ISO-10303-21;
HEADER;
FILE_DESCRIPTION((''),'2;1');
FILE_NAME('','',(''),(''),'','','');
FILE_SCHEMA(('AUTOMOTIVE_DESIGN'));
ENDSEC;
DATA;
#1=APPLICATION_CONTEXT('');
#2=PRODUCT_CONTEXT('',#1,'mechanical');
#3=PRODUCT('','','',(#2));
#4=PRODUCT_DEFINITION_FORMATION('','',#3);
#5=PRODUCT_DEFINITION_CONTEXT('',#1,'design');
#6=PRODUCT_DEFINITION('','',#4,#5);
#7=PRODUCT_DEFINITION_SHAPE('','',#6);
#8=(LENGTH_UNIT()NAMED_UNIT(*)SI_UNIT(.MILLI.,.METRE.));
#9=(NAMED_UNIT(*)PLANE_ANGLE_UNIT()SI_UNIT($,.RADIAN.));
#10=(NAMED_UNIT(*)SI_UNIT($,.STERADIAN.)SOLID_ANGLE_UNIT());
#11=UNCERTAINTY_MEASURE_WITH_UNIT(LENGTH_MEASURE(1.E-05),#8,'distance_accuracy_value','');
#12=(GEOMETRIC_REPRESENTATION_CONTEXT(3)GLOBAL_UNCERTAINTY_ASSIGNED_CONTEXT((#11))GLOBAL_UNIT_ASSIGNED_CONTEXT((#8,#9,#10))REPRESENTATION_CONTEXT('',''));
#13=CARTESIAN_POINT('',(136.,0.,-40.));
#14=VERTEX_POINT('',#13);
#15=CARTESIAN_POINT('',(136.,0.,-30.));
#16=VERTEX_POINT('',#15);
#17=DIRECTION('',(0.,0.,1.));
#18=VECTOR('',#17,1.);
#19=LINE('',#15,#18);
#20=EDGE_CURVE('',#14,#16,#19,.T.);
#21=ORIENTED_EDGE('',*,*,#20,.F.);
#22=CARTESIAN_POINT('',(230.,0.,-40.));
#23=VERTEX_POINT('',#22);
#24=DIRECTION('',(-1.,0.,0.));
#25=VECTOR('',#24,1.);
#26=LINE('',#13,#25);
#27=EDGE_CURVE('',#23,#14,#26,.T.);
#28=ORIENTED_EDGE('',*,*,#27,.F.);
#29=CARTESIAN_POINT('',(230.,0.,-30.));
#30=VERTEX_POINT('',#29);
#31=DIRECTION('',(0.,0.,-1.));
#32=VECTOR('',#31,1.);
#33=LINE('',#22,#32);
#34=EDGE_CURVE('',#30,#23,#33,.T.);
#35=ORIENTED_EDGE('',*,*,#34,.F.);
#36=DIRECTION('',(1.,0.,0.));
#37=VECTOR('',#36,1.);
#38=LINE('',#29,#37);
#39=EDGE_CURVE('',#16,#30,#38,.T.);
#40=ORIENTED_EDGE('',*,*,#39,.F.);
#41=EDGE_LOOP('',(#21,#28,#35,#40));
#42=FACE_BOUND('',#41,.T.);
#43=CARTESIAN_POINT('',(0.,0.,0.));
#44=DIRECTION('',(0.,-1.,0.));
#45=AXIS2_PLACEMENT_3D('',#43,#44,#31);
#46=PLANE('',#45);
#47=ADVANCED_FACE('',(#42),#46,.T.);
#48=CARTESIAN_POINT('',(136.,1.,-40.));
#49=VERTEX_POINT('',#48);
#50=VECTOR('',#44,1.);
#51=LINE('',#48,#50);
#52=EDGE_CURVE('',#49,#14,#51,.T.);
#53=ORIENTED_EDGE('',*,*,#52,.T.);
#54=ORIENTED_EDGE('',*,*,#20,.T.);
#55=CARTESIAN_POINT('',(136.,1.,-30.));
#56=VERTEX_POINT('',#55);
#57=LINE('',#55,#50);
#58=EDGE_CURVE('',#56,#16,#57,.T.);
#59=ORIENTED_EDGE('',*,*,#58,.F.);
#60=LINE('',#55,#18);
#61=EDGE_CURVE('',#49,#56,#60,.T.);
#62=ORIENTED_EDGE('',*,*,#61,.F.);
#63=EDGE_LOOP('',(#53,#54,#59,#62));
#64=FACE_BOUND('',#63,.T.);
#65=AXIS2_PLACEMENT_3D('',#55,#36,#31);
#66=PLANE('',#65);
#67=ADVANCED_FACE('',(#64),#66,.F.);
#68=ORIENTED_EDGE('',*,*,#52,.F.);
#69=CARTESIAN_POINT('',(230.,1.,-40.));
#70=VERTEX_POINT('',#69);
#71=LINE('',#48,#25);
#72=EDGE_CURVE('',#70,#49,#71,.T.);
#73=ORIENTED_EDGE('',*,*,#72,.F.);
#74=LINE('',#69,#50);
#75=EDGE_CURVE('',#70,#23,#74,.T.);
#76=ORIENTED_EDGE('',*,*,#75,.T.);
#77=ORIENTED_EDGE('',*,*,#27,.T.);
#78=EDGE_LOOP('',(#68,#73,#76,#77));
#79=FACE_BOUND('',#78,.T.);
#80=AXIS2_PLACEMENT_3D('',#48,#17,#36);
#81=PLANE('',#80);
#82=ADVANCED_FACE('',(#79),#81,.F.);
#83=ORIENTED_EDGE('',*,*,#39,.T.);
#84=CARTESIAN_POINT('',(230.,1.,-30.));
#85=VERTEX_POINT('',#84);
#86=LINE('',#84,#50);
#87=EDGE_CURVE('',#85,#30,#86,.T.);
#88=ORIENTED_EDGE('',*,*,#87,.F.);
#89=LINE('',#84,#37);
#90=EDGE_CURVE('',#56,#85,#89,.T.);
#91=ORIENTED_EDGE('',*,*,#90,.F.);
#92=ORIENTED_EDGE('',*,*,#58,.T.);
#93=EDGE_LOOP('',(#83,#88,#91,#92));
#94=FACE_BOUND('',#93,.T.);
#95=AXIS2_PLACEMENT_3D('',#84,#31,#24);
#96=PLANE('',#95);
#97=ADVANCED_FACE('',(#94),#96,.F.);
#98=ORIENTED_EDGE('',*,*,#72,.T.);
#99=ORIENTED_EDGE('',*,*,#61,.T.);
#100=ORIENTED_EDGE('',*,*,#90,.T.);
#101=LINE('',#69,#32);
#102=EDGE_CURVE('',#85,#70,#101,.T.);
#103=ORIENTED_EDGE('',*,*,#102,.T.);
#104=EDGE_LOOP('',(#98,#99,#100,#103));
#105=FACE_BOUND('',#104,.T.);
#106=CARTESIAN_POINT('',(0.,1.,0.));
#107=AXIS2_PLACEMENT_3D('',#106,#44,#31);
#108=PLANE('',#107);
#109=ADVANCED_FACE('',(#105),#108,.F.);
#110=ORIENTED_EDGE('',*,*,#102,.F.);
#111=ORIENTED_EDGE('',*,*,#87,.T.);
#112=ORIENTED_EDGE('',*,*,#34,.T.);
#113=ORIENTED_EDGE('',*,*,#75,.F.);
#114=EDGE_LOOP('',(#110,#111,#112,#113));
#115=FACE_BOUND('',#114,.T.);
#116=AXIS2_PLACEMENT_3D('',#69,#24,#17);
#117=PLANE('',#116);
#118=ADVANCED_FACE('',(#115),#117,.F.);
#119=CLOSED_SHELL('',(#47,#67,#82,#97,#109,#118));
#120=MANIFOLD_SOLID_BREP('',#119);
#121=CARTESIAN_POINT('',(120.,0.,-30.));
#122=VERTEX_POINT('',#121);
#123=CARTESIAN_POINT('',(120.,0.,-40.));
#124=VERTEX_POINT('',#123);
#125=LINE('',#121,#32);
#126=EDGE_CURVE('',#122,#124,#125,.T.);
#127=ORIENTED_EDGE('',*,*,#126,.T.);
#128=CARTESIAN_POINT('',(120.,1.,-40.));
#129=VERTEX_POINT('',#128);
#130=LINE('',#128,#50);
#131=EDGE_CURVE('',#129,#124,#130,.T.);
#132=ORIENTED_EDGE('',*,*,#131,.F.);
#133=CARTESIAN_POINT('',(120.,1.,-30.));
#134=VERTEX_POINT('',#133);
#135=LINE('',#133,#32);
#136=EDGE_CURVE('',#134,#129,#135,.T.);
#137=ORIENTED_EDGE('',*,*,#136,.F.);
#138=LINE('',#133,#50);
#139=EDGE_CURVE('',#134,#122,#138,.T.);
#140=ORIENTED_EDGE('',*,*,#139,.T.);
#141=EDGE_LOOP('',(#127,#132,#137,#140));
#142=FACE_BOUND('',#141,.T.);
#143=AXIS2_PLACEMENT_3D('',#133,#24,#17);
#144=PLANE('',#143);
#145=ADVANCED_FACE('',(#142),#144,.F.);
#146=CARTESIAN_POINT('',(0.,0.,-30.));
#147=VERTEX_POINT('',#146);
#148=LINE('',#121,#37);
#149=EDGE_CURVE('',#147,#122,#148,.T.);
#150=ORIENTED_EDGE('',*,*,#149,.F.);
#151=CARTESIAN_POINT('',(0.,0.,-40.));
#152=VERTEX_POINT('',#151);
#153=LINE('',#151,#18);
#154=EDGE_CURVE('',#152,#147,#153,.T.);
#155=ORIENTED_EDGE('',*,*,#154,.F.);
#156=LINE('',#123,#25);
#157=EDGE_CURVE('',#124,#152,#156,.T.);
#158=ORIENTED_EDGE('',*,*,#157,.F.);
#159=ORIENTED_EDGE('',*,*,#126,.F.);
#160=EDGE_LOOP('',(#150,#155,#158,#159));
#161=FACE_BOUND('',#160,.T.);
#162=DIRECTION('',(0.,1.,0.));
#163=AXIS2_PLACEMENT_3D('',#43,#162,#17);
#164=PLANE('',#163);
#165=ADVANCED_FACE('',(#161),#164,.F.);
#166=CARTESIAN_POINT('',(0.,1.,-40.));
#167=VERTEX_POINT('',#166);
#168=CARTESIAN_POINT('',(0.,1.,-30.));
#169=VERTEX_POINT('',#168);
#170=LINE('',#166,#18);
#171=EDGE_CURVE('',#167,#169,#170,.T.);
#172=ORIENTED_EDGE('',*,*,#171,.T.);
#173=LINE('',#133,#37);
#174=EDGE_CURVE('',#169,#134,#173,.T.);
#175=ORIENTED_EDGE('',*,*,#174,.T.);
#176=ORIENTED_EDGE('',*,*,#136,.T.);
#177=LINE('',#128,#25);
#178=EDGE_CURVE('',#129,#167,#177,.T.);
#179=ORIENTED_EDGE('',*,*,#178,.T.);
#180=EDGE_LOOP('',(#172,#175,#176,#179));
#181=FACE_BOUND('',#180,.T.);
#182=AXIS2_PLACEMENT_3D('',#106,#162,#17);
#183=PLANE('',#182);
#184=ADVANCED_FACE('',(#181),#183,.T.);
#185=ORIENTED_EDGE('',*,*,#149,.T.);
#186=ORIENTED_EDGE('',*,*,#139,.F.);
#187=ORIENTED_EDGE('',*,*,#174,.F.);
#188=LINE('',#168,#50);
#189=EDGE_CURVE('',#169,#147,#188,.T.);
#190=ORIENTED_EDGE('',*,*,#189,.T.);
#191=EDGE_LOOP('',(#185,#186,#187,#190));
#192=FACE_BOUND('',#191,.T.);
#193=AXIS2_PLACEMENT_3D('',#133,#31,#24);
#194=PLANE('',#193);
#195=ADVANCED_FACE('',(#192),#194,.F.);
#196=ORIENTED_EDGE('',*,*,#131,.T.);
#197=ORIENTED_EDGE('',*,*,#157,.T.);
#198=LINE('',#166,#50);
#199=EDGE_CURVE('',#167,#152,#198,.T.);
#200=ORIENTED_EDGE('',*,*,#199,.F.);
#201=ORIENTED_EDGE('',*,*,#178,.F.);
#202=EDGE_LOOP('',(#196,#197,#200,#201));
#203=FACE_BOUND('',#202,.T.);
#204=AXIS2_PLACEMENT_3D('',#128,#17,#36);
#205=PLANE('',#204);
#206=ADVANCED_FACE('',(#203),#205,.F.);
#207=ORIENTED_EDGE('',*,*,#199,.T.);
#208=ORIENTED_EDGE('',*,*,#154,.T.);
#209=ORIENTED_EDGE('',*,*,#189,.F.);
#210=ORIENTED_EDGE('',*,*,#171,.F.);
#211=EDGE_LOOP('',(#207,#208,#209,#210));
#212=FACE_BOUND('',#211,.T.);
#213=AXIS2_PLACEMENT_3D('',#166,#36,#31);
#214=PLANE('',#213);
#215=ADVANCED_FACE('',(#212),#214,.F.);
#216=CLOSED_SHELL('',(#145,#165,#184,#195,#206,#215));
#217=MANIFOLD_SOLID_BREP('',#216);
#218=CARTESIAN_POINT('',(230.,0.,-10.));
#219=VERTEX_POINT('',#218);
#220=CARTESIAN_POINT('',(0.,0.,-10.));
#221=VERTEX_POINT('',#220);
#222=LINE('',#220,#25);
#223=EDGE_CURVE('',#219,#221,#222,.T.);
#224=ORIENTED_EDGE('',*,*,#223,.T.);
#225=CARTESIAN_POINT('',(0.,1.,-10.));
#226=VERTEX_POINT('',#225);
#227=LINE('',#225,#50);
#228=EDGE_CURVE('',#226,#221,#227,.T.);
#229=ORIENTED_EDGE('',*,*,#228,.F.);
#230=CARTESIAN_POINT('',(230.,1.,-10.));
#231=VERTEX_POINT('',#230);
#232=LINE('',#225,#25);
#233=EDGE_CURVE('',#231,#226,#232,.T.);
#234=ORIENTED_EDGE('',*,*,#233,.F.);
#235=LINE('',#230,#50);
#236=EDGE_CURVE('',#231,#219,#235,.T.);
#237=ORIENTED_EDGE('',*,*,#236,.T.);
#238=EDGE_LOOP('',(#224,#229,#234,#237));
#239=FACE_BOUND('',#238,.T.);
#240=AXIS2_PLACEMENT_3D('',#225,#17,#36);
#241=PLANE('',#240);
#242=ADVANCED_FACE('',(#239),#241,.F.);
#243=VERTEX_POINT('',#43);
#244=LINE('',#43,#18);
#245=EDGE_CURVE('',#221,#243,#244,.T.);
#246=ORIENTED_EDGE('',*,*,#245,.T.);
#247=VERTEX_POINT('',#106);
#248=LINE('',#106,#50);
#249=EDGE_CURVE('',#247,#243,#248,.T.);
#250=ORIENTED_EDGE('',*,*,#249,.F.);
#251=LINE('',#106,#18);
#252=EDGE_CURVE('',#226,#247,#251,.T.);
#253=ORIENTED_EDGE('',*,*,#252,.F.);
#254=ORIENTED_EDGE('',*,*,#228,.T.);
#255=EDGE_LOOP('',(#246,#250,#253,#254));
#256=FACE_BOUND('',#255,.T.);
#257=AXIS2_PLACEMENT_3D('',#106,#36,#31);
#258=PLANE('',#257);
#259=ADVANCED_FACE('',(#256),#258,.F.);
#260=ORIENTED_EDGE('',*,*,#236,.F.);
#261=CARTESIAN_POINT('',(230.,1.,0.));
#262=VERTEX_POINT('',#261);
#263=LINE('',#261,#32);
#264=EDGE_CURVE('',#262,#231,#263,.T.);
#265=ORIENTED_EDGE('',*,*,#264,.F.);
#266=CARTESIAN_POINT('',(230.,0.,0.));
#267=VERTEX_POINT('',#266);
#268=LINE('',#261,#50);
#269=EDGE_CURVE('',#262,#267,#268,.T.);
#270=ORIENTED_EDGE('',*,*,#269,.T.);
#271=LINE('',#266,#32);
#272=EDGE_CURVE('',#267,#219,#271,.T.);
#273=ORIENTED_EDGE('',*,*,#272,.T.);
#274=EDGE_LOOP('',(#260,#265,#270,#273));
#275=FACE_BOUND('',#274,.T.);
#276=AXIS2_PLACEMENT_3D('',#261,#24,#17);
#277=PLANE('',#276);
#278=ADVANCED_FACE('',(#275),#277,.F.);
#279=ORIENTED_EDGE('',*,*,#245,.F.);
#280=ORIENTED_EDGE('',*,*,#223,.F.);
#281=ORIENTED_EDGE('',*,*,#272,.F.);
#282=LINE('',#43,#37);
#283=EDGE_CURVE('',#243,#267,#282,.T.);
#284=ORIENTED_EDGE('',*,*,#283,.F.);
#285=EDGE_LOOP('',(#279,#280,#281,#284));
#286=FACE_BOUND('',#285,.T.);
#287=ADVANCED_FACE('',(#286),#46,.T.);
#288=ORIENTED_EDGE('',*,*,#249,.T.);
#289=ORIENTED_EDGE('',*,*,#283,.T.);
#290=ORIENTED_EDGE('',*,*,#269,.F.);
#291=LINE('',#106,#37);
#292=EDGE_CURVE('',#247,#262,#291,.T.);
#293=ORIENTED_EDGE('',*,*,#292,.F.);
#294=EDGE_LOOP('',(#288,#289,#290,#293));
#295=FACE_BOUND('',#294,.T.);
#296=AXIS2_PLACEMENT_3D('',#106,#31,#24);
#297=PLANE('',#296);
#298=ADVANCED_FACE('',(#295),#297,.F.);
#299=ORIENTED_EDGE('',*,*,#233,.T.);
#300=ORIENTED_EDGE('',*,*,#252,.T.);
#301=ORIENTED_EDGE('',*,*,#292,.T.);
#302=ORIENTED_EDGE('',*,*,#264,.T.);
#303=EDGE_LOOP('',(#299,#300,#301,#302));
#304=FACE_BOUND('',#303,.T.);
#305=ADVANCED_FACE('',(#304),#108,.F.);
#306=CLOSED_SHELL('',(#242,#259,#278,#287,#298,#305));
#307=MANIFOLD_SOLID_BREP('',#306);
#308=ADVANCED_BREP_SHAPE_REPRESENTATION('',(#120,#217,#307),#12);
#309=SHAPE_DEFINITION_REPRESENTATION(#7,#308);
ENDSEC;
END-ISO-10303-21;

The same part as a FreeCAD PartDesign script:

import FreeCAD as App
import Part
import Sketcher
from FreeCAD import Vector

doc = App.newDocument("Part")
params = doc.addObject("Spreadsheet::Sheet", "Params")
for row, (alias, value) in enumerate([
    ("sketch1_width", "230 mm"),
    ("sketch1_height", "10 mm"),
    ("pad1_length", "1 mm"),
    ("sketch2_width", "94 mm"),
    ("sketch2_height", "10 mm"),
    ("pad2_length", "1 mm"),
    ("sketch3_width", "120 mm"),
    ("sketch3_height", "10 mm"),
    ("pad3_length", "1 mm"),
], start=1):
    params.set(f"A{row}", alias)
    params.set(f"B{row}", "=" + value)
    params.setAlias(f"B{row}", alias)

body = doc.addObject("PartDesign::Body", "Body")

# Sketch on XZ plane
sketch1 = body.newObject("Sketcher::SketchObject", "Sketch")
sketch1.AttachmentSupport = (doc.getObject("XZ_Plane"), [""])
sketch1.MapMode = "FlatFace"
sketch1.addGeometry([
    Part.LineSegment(Vector(0, -10, 0), Vector(0, 0, 0)),
    Part.LineSegment(Vector(0, 0, 0), Vector(230, 0, 0)),
    Part.LineSegment(Vector(230, 0, 0), Vector(230, -10, 0)),
    Part.LineSegment(Vector(230, -10, 0), Vector(0, -10, 0)),
], False)
sketch1.addConstraint([
    Sketcher.Constraint("Coincident", 0, 2, 1, 1),
    Sketcher.Constraint("Coincident", 1, 2, 2, 1),
    Sketcher.Constraint("Coincident", 2, 2, 3, 1),
    Sketcher.Constraint("Coincident", 3, 2, 0, 1),
    Sketcher.Constraint("Vertical", 0),
    Sketcher.Constraint("Horizontal", 1),
    Sketcher.Constraint("Vertical", 2),
    Sketcher.Constraint("Horizontal", 3),
    Sketcher.Constraint("Coincident", 0, 2, -1, 1),
    Sketcher.Constraint("DistanceX", 1, 1, 1, 2, 230.0),
    Sketcher.Constraint("DistanceY", 0, 1, 0, 2, 10.0),
])
sketch1.setExpression("Constraints[9]", "Params.sketch1_width")
sketch1.setExpression("Constraints[10]", "Params.sketch1_height")
pad1 = body.newObject("PartDesign::Pad", "Pad")
pad1.Profile = sketch1
pad1.setExpression("Length", "Params.pad1_length")
pad1.Reversed = True
body2 = doc.addObject("PartDesign::Body", "Body001")

# Sketch on XZ plane
sketch2 = body2.newObject("Sketcher::SketchObject", "Sketch001")
sketch2.AttachmentSupport = (doc.getObject("XZ_Plane001"), [""])
sketch2.MapMode = "FlatFace"
sketch2.addGeometry([
    Part.LineSegment(Vector(136, -40, 0), Vector(136, -30, 0)),
    Part.LineSegment(Vector(136, -30, 0), Vector(230, -30, 0)),
    Part.LineSegment(Vector(230, -30, 0), Vector(230, -40, 0)),
    Part.LineSegment(Vector(230, -40, 0), Vector(136, -40, 0)),
], False)
sketch2.addConstraint([
    Sketcher.Constraint("Coincident", 0, 2, 1, 1),
    Sketcher.Constraint("Coincident", 1, 2, 2, 1),
    Sketcher.Constraint("Coincident", 2, 2, 3, 1),
    Sketcher.Constraint("Coincident", 3, 2, 0, 1),
    Sketcher.Constraint("Vertical", 0),
    Sketcher.Constraint("Horizontal", 1),
    Sketcher.Constraint("Vertical", 2),
    Sketcher.Constraint("Horizontal", 3),
    Sketcher.Constraint("DistanceX", 1, 1, 1, 2, 94.0),
    Sketcher.Constraint("DistanceY", 0, 1, 0, 2, 10.0),
    Sketcher.Constraint("DistanceX", -1, 1, 0, 2, 136.0),
    Sketcher.Constraint("DistanceY", 0, 2, -1, 1, 30.0),
])
sketch2.setExpression("Constraints[8]", "Params.sketch2_width")
sketch2.setExpression("Constraints[9]", "Params.sketch2_height")
pad2 = body2.newObject("PartDesign::Pad", "Pad001")
pad2.Profile = sketch2
pad2.setExpression("Length", "Params.pad2_length")
pad2.Reversed = True
body3 = doc.addObject("PartDesign::Body", "Body002")

# Sketch on XZ plane
sketch3 = body3.newObject("Sketcher::SketchObject", "Sketch002")
sketch3.AttachmentSupport = (doc.getObject("XZ_Plane002"), [""])
sketch3.MapMode = "FlatFace"
sketch3.addGeometry([
    Part.LineSegment(Vector(0, -40, 0), Vector(0, -30, 0)),
    Part.LineSegment(Vector(0, -30, 0), Vector(120, -30, 0)),
    Part.LineSegment(Vector(120, -30, 0), Vector(120, -40, 0)),
    Part.LineSegment(Vector(120, -40, 0), Vector(0, -40, 0)),
], False)
sketch3.addConstraint([
    Sketcher.Constraint("Coincident", 0, 2, 1, 1),
    Sketcher.Constraint("Coincident", 1, 2, 2, 1),
    Sketcher.Constraint("Coincident", 2, 2, 3, 1),
    Sketcher.Constraint("Coincident", 3, 2, 0, 1),
    Sketcher.Constraint("Vertical", 0),
    Sketcher.Constraint("Horizontal", 1),
    Sketcher.Constraint("Vertical", 2),
    Sketcher.Constraint("Horizontal", 3),
    Sketcher.Constraint("PointOnObject", 0, 2, -2),
    Sketcher.Constraint("DistanceX", 1, 1, 1, 2, 120.0),
    Sketcher.Constraint("DistanceY", 0, 1, 0, 2, 10.0),
    Sketcher.Constraint("DistanceY", 0, 2, -1, 1, 30.0),
])
sketch3.setExpression("Constraints[9]", "Params.sketch3_width")
sketch3.setExpression("Constraints[10]", "Params.sketch3_height")
pad3 = body3.newObject("PartDesign::Pad", "Pad002")
pad3.Profile = sketch3
pad3.setExpression("Length", "Params.pad3_length")
pad3.Reversed = True

doc.recompute()
